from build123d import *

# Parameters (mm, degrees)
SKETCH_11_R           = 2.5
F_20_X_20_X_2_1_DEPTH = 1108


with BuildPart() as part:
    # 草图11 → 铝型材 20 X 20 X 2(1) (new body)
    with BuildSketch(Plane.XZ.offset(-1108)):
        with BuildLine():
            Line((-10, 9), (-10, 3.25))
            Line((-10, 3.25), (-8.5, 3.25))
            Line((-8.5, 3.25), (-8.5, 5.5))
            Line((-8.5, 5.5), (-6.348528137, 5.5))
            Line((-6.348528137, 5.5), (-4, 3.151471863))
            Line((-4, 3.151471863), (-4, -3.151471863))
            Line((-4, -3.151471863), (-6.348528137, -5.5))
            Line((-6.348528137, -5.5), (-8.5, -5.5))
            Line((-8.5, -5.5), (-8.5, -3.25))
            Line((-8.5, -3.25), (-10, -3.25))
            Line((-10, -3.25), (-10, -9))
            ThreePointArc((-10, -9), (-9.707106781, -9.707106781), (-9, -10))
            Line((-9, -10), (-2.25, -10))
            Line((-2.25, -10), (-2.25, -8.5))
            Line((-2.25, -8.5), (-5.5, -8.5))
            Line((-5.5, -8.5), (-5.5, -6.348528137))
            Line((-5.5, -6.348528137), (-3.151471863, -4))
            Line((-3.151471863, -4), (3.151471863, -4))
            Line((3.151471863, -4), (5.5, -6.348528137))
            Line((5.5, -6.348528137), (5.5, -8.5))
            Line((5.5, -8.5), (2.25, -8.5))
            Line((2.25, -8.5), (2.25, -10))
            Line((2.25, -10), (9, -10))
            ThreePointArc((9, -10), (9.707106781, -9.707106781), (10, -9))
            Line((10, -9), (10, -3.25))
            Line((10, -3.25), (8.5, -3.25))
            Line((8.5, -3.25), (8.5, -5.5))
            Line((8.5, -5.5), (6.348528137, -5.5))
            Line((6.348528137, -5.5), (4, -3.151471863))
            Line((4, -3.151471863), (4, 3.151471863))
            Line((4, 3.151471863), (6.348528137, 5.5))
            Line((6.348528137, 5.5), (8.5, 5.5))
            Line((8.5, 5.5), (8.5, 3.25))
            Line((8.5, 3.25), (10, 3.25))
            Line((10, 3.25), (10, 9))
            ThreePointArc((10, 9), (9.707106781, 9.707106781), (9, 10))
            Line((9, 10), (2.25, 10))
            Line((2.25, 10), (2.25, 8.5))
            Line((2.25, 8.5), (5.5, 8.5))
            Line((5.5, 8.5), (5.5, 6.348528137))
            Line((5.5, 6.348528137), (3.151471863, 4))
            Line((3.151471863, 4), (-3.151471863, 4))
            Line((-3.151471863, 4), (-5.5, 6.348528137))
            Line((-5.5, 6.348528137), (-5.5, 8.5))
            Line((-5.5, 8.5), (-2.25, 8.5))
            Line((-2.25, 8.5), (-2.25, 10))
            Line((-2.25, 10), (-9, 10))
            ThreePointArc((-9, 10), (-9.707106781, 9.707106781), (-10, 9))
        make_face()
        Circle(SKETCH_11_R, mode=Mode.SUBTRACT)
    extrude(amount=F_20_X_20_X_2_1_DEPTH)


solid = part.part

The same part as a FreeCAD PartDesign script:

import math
import FreeCAD as App
import Part
import Sketcher
from FreeCAD import Vector

doc = App.newDocument("Part")
body = doc.addObject("PartDesign::Body", "Body")

sketch1 = body.newObject("Sketcher::SketchObject", "Sketch")
sketch1.AttachmentSupport = (doc.getObject("XZ_Plane"), [""])
sketch1.MapMode = "FlatFace"
sketch1.AttachmentOffset = App.Placement(Vector(0, 0, -1108), App.Rotation())
sketch1.addGeometry(Part.LineSegment(Vector(-10, 9, 0), Vector(-10, 3.2, 0)), False)
sketch1.addGeometry(Part.LineSegment(Vector(-10, 3.2, 0), Vector(-8.5, 3.2, 0)), False)
sketch1.addGeometry(Part.LineSegment(Vector(-8.5, 3.2, 0), Vector(-8.5, 5.5, 0)), False)
sketch1.addGeometry(Part.LineSegment(Vector(-8.5, 5.5, 0), Vector(-6.3, 5.5, 0)), False)
sketch1.addGeometry(Part.LineSegment(Vector(-6.3, 5.5, 0), Vector(-4, 3.2, 0)), False)
sketch1.addGeometry(Part.LineSegment(Vector(-4, 3.2, 0), Vector(-4, -3.2, 0)), False)
sketch1.addGeometry(Part.LineSegment(Vector(-4, -3.2, 0), Vector(-6.3, -5.5, 0)), False)
sketch1.addGeometry(Part.LineSegment(Vector(-6.3, -5.5, 0), Vector(-8.5, -5.5, 0)), False)
sketch1.addGeometry(Part.LineSegment(Vector(-8.5, -5.5, 0), Vector(-8.5, -3.2, 0)), False)
sketch1.addGeometry(Part.LineSegment(Vector(-8.5, -3.2, 0), Vector(-10, -3.2, 0)), False)
sketch1.addGeometry(Part.LineSegment(Vector(-10, -3.2, 0), Vector(-10, -9, 0)), False)
sketch1.addGeometry(Part.ArcOfCircle(Part.Circle(Vector(-9, -9, 0), Vector(0, 0, 1), 1), math.radians(-180), math.radians(-90)), False)
sketch1.addGeometry(Part.LineSegment(Vector(-9, -10, 0), Vector(-2.2, -10, 0)), False)
sketch1.addGeometry(Part.LineSegment(Vector(-2.2, -10, 0), Vector(-2.2, -8.5, 0)), False)
sketch1.addGeometry(Part.LineSegment(Vector(-2.2, -8.5, 0), Vector(-5.5, -8.5, 0)), False)
sketch1.addGeometry(Part.LineSegment(Vector(-5.5, -8.5, 0), Vector(-5.5, -6.3, 0)), False)
sketch1.addGeometry(Part.LineSegment(Vector(-5.5, -6.3, 0), Vector(-3.2, -4, 0)), False)
sketch1.addGeometry(Part.LineSegment(Vector(-3.2, -4, 0), Vector(3.2, -4, 0)), False)
sketch1.addGeometry(Part.LineSegment(Vector(3.2, -4, 0), Vector(5.5, -6.3, 0)), False)
sketch1.addGeometry(Part.LineSegment(Vector(5.5, -6.3, 0), Vector(5.5, -8.5, 0)), False)
sketch1.addGeometry(Part.LineSegment(Vector(5.5, -8.5, 0), Vector(2.2, -8.5, 0)), False)
sketch1.addGeometry(Part.LineSegment(Vector(2.2, -8.5, 0), Vector(2.2, -10, 0)), False)
sketch1.addGeometry(Part.LineSegment(Vector(2.2, -10, 0), Vector(9, -10, 0)), False)
sketch1.addGeometry(Part.ArcOfCircle(Part.Circle(Vector(9, -9, 0), Vector(0, 0, 1), 1), math.radians(-90), math.radians(0)), False)
sketch1.addGeometry(Part.LineSegment(Vector(10, -9, 0), Vector(10, -3.2, 0)), False)
sketch1.addGeometry(Part.LineSegment(Vector(10, -3.2, 0), Vector(8.5, -3.2, 0)), False)
sketch1.addGeometry(Part.LineSegment(Vector(8.5, -3.2, 0), Vector(8.5, -5.5, 0)), False)
sketch1.addGeometry(Part.LineSegment(Vector(8.5, -5.5, 0), Vector(6.3, -5.5, 0)), False)
sketch1.addGeometry(Part.LineSegment(Vector(6.3, -5.5, 0), Vector(4, -3.2, 0)), False)
sketch1.addGeometry(Part.LineSegment(Vector(4, -3.2, 0), Vector(4, 3.2, 0)), False)
sketch1.addGeometry(Part.LineSegment(Vector(4, 3.2, 0), Vector(6.3, 5.5, 0)), False)
sketch1.addGeometry(Part.LineSegment(Vector(6.3, 5.5, 0), Vector(8.5, 5.5, 0)), False)
sketch1.addGeometry(Part.LineSegment(Vector(8.5, 5.5, 0), Vector(8.5, 3.2, 0)), False)
sketch1.addGeometry(Part.LineSegment(Vector(8.5, 3.2, 0), Vector(10, 3.2, 0)), False)
sketch1.addGeometry(Part.LineSegment(Vector(10, 3.2, 0), Vector(10, 9, 0)), False)
sketch1.addGeometry(Part.ArcOfCircle(Part.Circle(Vector(9, 9, 0), Vector(0, 0, 1), 1), math.radians(0), math.radians(90)), False)
sketch1.addGeometry(Part.LineSegment(Vector(9, 10, 0), Vector(2.2, 10, 0)), False)
sketch1.addGeometry(Part.LineSegment(Vector(2.2, 10, 0), Vector(2.2, 8.5, 0)), False)
sketch1.addGeometry(Part.LineSegment(Vector(2.2, 8.5, 0), Vector(5.5, 8.5, 0)), False)
sketch1.addGeometry(Part.LineSegment(Vector(5.5, 8.5, 0), Vector(5.5, 6.3, 0)), False)
sketch1.addGeometry(Part.LineSegment(Vector(5.5, 6.3, 0), Vector(3.2, 4, 0)), False)
sketch1.addGeometry(Part.LineSegment(Vector(3.2, 4, 0), Vector(-3.2, 4, 0)), False)
sketch1.addGeometry(Part.LineSegment(Vector(-3.2, 4, 0), Vector(-5.5, 6.3, 0)), False)
sketch1.addGeometry(Part.LineSegment(Vector(-5.5, 6.3, 0), Vector(-5.5, 8.5, 0)), False)
sketch1.addGeometry(Part.LineSegment(Vector(-5.5, 8.5, 0), Vector(-2.2, 8.5, 0)), False)
sketch1.addGeometry(Part.LineSegment(Vector(-2.2, 8.5, 0), Vector(-2.2, 10, 0)), False)
sketch1.addGeometry(Part.LineSegment(Vector(-2.2, 10, 0), Vector(-9, 10, 0)), False)
sketch1.addGeometry(Part.ArcOfCircle(Part.Circle(Vector(-9, 9, 0), Vector(0, 0, 1), 1), math.radians(90), math.radians(180)), False)
sketch1.addGeometry(Part.Circle(Vector(0, 0, 0), Vector(0, 0, 1), 2.5), False)
sketch1.addConstraint(Sketcher.Constraint("Coincident", 0, 2, 1, 1))
sketch1.addConstraint(Sketcher.Constraint("Coincident", 1, 2, 2, 1))
sketch1.addConstraint(Sketcher.Constraint("Coincident", 2, 2, 3, 1))
sketch1.addConstraint(Sketcher.Constraint("Coincident", 3, 2, 4, 1))
sketch1.addConstraint(Sketcher.Constraint("Coincident", 4, 2, 5, 1))
sketch1.addConstraint(Sketcher.Constraint("Coincident", 5, 2, 6, 1))
sketch1.addConstraint(Sketcher.Constraint("Coincident", 6, 2, 7, 1))
sketch1.addConstraint(Sketcher.Constraint("Coincident", 7, 2, 8, 1))
sketch1.addConstraint(Sketcher.Constraint("Coincident", 8, 2, 9, 1))
sketch1.addConstraint(Sketcher.Constraint("Coincident", 9, 2, 10, 1))
sketch1.addConstraint(Sketcher.Constraint("Tangent", 10, 2, 11, 1))
sketch1.addConstraint(Sketcher.Constraint("Tangent", 11, 2, 12, 1))
sketch1.addConstraint(Sketcher.Constraint("Coincident", 12, 2, 13, 1))
sketch1.addConstraint(Sketcher.Constraint("Coincident", 13, 2, 14, 1))
sketch1.addConstraint(Sketcher.Constraint("Coincident", 14, 2, 15, 1))
sketch1.addConstraint(Sketcher.Constraint("Coincident", 15, 2, 16, 1))
sketch1.addConstraint(Sketcher.Constraint("Coincident", 16, 2, 17, 1))
sketch1.addConstraint(Sketcher.Constraint("Coincident", 17, 2, 18, 1))
sketch1.addConstraint(Sketcher.Constraint("Coincident", 18, 2, 19, 1))
sketch1.addConstraint(Sketcher.Constraint("Coincident", 19, 2, 20, 1))
sketch1.addConstraint(Sketcher.Constraint("Coincident", 20, 2, 21, 1))
sketch1.addConstraint(Sketcher.Constraint("Coincident", 21, 2, 22, 1))
sketch1.addConstraint(Sketcher.Constraint("Tangent", 22, 2, 23, 1))
sketch1.addConstraint(Sketcher.Constraint("Tangent", 23, 2, 24, 1))
sketch1.addConstraint(Sketcher.Constraint("Coincident", 24, 2, 25, 1))
sketch1.addConstraint(Sketcher.Constraint("Coincident", 25, 2, 26, 1))
sketch1.addConstraint(Sketcher.Constraint("Coincident", 26, 2, 27, 1))
sketch1.addConstraint(Sketcher.Constraint("Coincident", 27, 2, 28, 1))
sketch1.addConstraint(Sketcher.Constraint("Coincident", 28, 2, 29, 1))
sketch1.addConstraint(Sketcher.Constraint("Coincident", 29, 2, 30, 1))
sketch1.addConstraint(Sketcher.Constraint("Coincident", 30, 2, 31, 1))
sketch1.addConstraint(Sketcher.Constraint("Coincident", 31, 2, 32, 1))
sketch1.addConstraint(Sketcher.Constraint("Coincident", 32, 2, 33, 1))
sketch1.addConstraint(Sketcher.Constraint("Coincident", 33, 2, 34, 1))
sketch1.addConstraint(Sketcher.Constraint("Tangent", 34, 2, 35, 1))
sketch1.addConstraint(Sketcher.Constraint("Tangent", 35, 2, 36, 1))
sketch1.addConstraint(Sketcher.Constraint("Coincident", 36, 2, 37, 1))
sketch1.addConstraint(Sketcher.Constraint("Coincident", 37, 2, 38, 1))
sketch1.addConstraint(Sketcher.Constraint("Coincident", 38, 2, 39, 1))
sketch1.addConstraint(Sketcher.Constraint("Coincident", 39, 2, 40, 1))
sketch1.addConstraint(Sketcher.Constraint("Coincident", 40, 2, 41, 1))
sketch1.addConstraint(Sketcher.Constraint("Coincident", 41, 2, 42, 1))
sketch1.addConstraint(Sketcher.Constraint("Coincident", 42, 2, 43, 1))
sketch1.addConstraint(Sketcher.Constraint("Coincident", 43, 2, 44, 1))
sketch1.addConstraint(Sketcher.Constraint("Coincident", 44, 2, 45, 1))
sketch1.addConstraint(Sketcher.Constraint("Coincident", 45, 2, 46, 1))
sketch1.addConstraint(Sketcher.Constraint("Tangent", 46, 2, 47, 1))
sketch1.addConstraint(Sketcher.Constraint("Tangent", 47, 2, 0, 1))
sketch1.addConstraint(Sketcher.Constraint("Vertical", 0))
sketch1.addConstraint(Sketcher.Constraint("Horizontal", 1))
sketch1.addConstraint(Sketcher.Constraint("Vertical", 2))
sketch1.addConstraint(Sketcher.Constraint("Horizontal", 3))
sketch1.addConstraint(Sketcher.Constraint("Vertical", 5))
sketch1.addConstraint(Sketcher.Constraint("Horizontal", 7))
sketch1.addConstraint(Sketcher.Constraint("Vertical", 8))
sketch1.addConstraint(Sketcher.Constraint("Horizontal", 9))
sketch1.addConstraint(Sketcher.Constraint("Vertical", 10))
sketch1.addConstraint(Sketcher.Constraint("Horizontal", 12))
sketch1.addConstraint(Sketcher.Constraint("Vertical", 13))
sketch1.addConstraint(Sketcher.Constraint("Horizontal", 14))
sketch1.addConstraint(Sketcher.Constraint("Vertical", 15))
sketch1.addConstraint(Sketcher.Constraint("Horizontal", 17))
sketch1.addConstraint(Sketcher.Constraint("Vertical", 19))
sketch1.addConstraint(Sketcher.Constraint("Horizontal", 20))
sketch1.addConstraint(Sketcher.Constraint("Vertical", 21))
sketch1.addConstraint(Sketcher.Constraint("Horizontal", 22))
sketch1.addConstraint(Sketcher.Constraint("Vertical", 24))
sketch1.addConstraint(Sketcher.Constraint("Horizontal", 25))
sketch1.addConstraint(Sketcher.Constraint("Vertical", 26))
sketch1.addConstraint(Sketcher.Constraint("Horizontal", 27))
sketch1.addConstraint(Sketcher.Constraint("Vertical", 29))
sketch1.addConstraint(Sketcher.Constraint("Horizontal", 31))
sketch1.addConstraint(Sketcher.Constraint("Vertical", 32))
sketch1.addConstraint(Sketcher.Constraint("Horizontal", 33))
sketch1.addConstraint(Sketcher.Constraint("Vertical", 34))
sketch1.addConstraint(Sketcher.Constraint("Horizontal", 36))
sketch1.addConstraint(Sketcher.Constraint("Vertical", 37))
sketch1.addConstraint(Sketcher.Constraint("Horizontal", 38))
sketch1.addConstraint(Sketcher.Constraint("Vertical", 39))
sketch1.addConstraint(Sketcher.Constraint("Horizontal", 41))
sketch1.addConstraint(Sketcher.Constraint("Vertical", 43))
sketch1.addConstraint(Sketcher.Constraint("Horizontal", 44))
sketch1.addConstraint(Sketcher.Constraint("Vertical", 45))
sketch1.addConstraint(Sketcher.Constraint("Horizontal", 46))
sketch1.addConstraint(Sketcher.Constraint("Coincident", 48, 3, -1, 1))
sketch1.addConstraint(Sketcher.Constraint("Equal", 11, 23))
sketch1.addConstraint(Sketcher.Constraint("Equal", 23, 35))
sketch1.addConstraint(Sketcher.Constraint("Equal", 35, 47))
sketch1.addConstraint(Sketcher.Constraint("Symmetric", 11, 3, 35, 3, -1, 1))
sketch1.addConstraint(Sketcher.Constraint("Symmetric", 23, 3, 47, 3, -1, 1))
sketch1.addConstraint(Sketcher.Constraint("Symmetric", 1, 2, 25, 2, -1, 1))
sketch1.addConstraint(Sketcher.Constraint("Symmetric", 3, 2, 27, 2, -1, 1))
sketch1.addConstraint(Sketcher.Constraint("Symmetric", 4, 2, 28, 2, -1, 1))
sketch1.addConstraint(Sketcher.Constraint("Symmetric", 6, 2, 30, 2, -1, 1))
sketch1.addConstraint(Sketcher.Constraint("Symmetric", 8, 2, 32, 2, -1, 1))
sketch1.addConstraint(Sketcher.Constraint("Symmetric", 13, 2, 37, 2, -1, 1))
sketch1.addConstraint(Sketcher.Constraint("Symmetric", 15, 2, 39, 2, -1, 1))
sketch1.addConstraint(Sketcher.Constraint("Symmetric", 16, 2, 40, 2, -1, 1))
sketch1.addConstraint(Sketcher.Constraint("Symmetric", 18, 2, 42, 2, -1, 1))
sketch1.addConstraint(Sketcher.Constraint("Symmetric", 20, 2, 44, 2, -1, 1))
sketch1.addConstraint(Sketcher.Constraint("Symmetric", 11, 3, 23, 3, -2))
sketch1.addConstraint(Sketcher.Constraint("Symmetric", 15, 2, 18, 2, -2))
sketch1.addConstraint(Sketcher.Constraint("Symmetric", 13, 2, 20, 2, -2))
sketch1.addConstraint(Sketcher.Constraint("Symmetric", 8, 2, 25, 2, -2))
sketch1.addConstraint(Sketcher.Constraint("Symmetric", 6, 2, 27, 2, -2))
sketch1.addConstraint(Sketcher.Constraint("Perpendicular", 4, 6))
sketch1.addConstraint(Sketcher.Constraint("Parallel", 6, 16))
sketch1.addConstraint(Sketcher.Constraint("Perpendicular", 16, 18))
sketch1.addConstraint(Sketcher.Constraint("Perpendicular", 28, 30))
sketch1.addConstraint(Sketcher.Constraint("Perpendicular", 40, 42))
sketch1.addConstraint(Sketcher.Constraint("Horizontal", 5, 2, 28, 2))
sketch1.addConstraint(Sketcher.Constraint("Equal", 41, 5))
sketch1.addConstraint(Sketcher.Constraint("Equal", 33, 13))
sketch1.addConstraint(Sketcher.Constraint("Equal", 31, 15))
sketch1.addConstraint(Sketcher.Constraint("Equal", 6, 16))
sketch1.addConstraint(Sketcher.Constraint("Diameter", 48, 5.0))
sketch1.addConstraint(Sketcher.Constraint("Radius", 11, 1.0))
sketch1.addConstraint(Sketcher.Constraint("DistanceX", 1, 1, 1, 2, 1.5))
sketch1.addConstraint(Sketcher.Constraint("DistanceX", 11, 3, -1, 1, 9.0))
sketch1.addConstraint(Sketcher.Constraint("DistanceY", 11, 3, -1, 1, 9.0))
sketch1.addConstraint(Sketcher.Constraint("DistanceX", 4, 2, -1, 1, 4.0))
sketch1.addConstraint(Sketcher.Constraint("DistanceY", 13, 2, 6, 2, 3.0))
sketch1.addConstraint(Sketcher.Constraint("DistanceX", 12, 1, 12, 2, 6.75))
sketch1.addConstraint(Sketcher.Constraint("DistanceY", 0, 2, 0, 1, 5.75))
sketch1.addConstraint(Sketcher.Constraint("DistanceX", 3, 1, 3, 2, 2.151472))
pad1 = body.newObject("PartDesign::Pad", "Pad")
pad1.Profile = sketch1
pad1.Length = 1108

doc.recompute()
